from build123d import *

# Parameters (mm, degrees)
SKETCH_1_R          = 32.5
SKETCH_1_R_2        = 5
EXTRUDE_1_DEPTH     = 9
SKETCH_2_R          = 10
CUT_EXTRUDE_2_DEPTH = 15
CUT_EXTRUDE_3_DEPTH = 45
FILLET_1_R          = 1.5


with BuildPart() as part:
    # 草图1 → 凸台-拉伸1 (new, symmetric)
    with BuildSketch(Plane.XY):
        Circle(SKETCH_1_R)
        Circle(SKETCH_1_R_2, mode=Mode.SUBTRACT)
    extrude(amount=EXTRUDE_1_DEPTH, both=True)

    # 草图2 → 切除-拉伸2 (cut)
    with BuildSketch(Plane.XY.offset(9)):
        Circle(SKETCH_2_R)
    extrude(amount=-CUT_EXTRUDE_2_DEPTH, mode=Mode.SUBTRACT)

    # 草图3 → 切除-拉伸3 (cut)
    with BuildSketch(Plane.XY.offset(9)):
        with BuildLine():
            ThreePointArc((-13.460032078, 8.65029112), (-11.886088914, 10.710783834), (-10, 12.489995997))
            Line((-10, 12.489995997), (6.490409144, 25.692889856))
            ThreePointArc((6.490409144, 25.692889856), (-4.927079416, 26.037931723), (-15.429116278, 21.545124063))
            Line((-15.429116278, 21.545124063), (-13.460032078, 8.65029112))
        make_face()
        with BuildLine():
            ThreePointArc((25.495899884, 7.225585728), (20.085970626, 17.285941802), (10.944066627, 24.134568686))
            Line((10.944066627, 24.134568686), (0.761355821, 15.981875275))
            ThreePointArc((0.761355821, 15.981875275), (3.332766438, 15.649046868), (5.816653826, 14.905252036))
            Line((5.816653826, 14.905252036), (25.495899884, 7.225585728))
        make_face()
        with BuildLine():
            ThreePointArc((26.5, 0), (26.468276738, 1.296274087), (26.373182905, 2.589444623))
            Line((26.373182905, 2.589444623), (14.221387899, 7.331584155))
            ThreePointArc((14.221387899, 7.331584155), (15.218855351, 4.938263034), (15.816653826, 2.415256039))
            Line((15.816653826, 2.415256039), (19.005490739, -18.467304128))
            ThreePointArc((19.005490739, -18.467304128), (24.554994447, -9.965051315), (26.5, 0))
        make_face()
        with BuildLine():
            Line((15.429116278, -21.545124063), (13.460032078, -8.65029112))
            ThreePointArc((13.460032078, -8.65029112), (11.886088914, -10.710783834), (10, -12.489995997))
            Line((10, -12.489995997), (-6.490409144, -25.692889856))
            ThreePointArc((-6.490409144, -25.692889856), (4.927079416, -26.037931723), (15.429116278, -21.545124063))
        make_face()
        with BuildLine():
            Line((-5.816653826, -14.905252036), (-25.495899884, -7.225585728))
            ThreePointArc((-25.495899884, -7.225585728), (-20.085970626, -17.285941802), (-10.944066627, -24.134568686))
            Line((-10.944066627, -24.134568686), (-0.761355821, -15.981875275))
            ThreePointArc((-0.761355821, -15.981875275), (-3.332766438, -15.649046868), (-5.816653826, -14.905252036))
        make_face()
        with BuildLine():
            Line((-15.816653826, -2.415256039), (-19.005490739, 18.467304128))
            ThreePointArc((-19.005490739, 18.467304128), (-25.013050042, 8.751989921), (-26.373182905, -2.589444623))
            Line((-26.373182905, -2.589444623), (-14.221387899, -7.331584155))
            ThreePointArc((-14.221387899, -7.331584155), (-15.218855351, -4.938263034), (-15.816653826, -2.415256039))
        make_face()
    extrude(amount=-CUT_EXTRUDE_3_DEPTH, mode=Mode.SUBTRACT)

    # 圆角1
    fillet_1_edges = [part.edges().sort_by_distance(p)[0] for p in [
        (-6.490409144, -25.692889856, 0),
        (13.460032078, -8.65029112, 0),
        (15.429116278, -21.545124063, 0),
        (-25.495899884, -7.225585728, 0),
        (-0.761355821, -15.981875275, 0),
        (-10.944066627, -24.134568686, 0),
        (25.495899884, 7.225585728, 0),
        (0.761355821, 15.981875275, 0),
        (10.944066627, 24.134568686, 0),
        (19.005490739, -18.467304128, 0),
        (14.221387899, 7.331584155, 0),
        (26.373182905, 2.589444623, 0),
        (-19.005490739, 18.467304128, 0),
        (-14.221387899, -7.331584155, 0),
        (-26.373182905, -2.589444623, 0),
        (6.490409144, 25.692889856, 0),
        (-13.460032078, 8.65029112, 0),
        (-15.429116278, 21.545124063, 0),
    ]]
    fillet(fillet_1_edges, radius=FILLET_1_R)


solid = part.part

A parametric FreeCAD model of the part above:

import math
import FreeCAD as App
import Part
import Sketcher
Q = App.Units.Quantity


def edges_at(feature, points):
    """Names of the edges that pass closest to the given points."""
    edges = feature.Shape.Edges
    near = lambda p: min(range(len(edges)), key=lambda i: edges[i].distToShape(Part.Vertex(*p))[0])
    return sorted({f"Edge{near(p) + 1}" for p in points})

doc = App.newDocument("Part")
body = doc.addObject("PartDesign::Body", "Body")

# Sketch on XY plane
sketch1 = body.newObject("Sketcher::SketchObject", "Sketch")
sketch1.AttachmentSupport = (doc.getObject("XY_Plane"), [""])
sketch1.MapMode = "FlatFace"
sketch1.addGeometry(Part.Circle(App.Vector(0, 0, 0), App.Vector(0, 0, 1), 32), False)
sketch1.addGeometry(Part.Circle(App.Vector(0, 0, 0), App.Vector(0, 0, 1), 5), False)
sketch1.addConstraint(Sketcher.Constraint("Coincident", 0, 3, -1, 1))
sketch1.addConstraint(Sketcher.Constraint("Coincident", 1, 3, -1, 1))
sketch1.addConstraint(Sketcher.Constraint("Diameter", 0, Q("65 mm")))
sketch1.addConstraint(Sketcher.Constraint("Diameter", 1, Q("10 mm")))
pad1 = body.newObject("PartDesign::Pad", "Pad")
pad1.Profile = sketch1
pad1.Length = 18
pad1.Midplane = True

# Sketch on XY plane
sketch2 = body.newObject("Sketcher::SketchObject", "Sketch001")
sketch2.AttachmentSupport = (doc.getObject("XY_Plane"), [""])
sketch2.MapMode = "FlatFace"
sketch2.AttachmentOffset = App.Placement(App.Vector(0, 0, 9), App.Rotation())
sketch2.addGeometry(Part.Circle(App.Vector(0, 0, 0), App.Vector(0, 0, 1), 10), False)
sketch2.addConstraint(Sketcher.Constraint("Coincident", 0, 3, -1, 1))
sketch2.addConstraint(Sketcher.Constraint("Diameter", 0, Q("20 mm")))
pocket1 = body.newObject("PartDesign::Pocket", "Pocket")
pocket1.Profile = sketch2
pocket1.Length = 15

# Sketch on XY plane
sketch3 = body.newObject("Sketcher::SketchObject", "Sketch002")
sketch3.AttachmentSupport = (doc.getObject("XY_Plane"), [""])
sketch3.MapMode = "FlatFace"
sketch3.AttachmentOffset = App.Placement(App.Vector(0, 0, 9), App.Rotation())
sketch3.addGeometry(Part.ArcOfCircle(Part.Circle(App.Vector(0, 0, 0), App.Vector(0, 0, 1), 16), math.radians(128.68), math.radians(147.27)), False)
sketch3.addGeometry(Part.LineSegment(App.Vector(-10, 12.5, 0), App.Vector(6.5, 25.7, 0)), False)
sketch3.addGeometry(Part.ArcOfCircle(Part.Circle(App.Vector(0, 0, 0), App.Vector(0, 0, 1), 26.5), math.radians(76), math.radians(126)), False)
sketch3.addGeometry(Part.LineSegment(App.Vector(-15.4, 21.5, 0), App.Vector(-13.5, 8.7, 0)), False)
sketch3.addGeometry(Part.ArcOfCircle(Part.Circle(App.Vector(0, 0, 0), App.Vector(0, 0, 1), 26.5), math.radians(16), math.radians(66)), False)
sketch3.addGeometry(Part.LineSegment(App.Vector(10.9, 24.1, 0), App.Vector(0.8, 16, 0)), False)
sketch3.addGeometry(Part.ArcOfCircle(Part.Circle(App.Vector(0, 0, 0), App.Vector(0, 0, 1), 16), math.radians(68.68), math.radians(87.27)), False)
sketch3.addGeometry(Part.LineSegment(App.Vector(5.8, 14.9, 0), App.Vector(25.5, 7.2, 0)), False)
sketch3.addGeometry(Part.ArcOfCircle(Part.Circle(App.Vector(0, 0, 0), App.Vector(0, 0, 1), 26.5), math.radians(0), math.radians(5.61)), False)
sketch3.addGeometry(Part.LineSegment(App.Vector(26.4, 2.6, 0), App.Vector(14.2, 7.3, 0)), False)
sketch3.addGeometry(Part.ArcOfCircle(Part.Circle(App.Vector(0, 0, 0), App.Vector(0, 0, 1), 16), math.radians(8.68), math.radians(27.27)), False)
sketch3.addGeometry(Part.LineSegment(App.Vector(15.8, 2.4, 0), App.Vector(19, -18.5, 0)), False)
sketch3.addGeometry(Part.ArcOfCircle(Part.Circle(App.Vector(0, 0, 0), App.Vector(0, 0, 1), 26.5), math.radians(-44), math.radians(0)), False)
sketch3.addGeometry(Part.LineSegment(App.Vector(15.4, -21.5, 0), App.Vector(13.5, -8.7, 0)), False)
sketch3.addGeometry(Part.ArcOfCircle(Part.Circle(App.Vector(0, 0, 0), App.Vector(0, 0, 1), 16), math.radians(-51.32), math.radians(-32.73)), False)
sketch3.addGeometry(Part.LineSegment(App.Vector(10, -12.5, 0), App.Vector(-6.5, -25.7, 0)), False)
sketch3.addGeometry(Part.ArcOfCircle(Part.Circle(App.Vector(0, 0, 0), App.Vector(0, 0, 1), 26.5), math.radians(-104), math.radians(-54)), False)
sketch3.addGeometry(Part.LineSegment(App.Vector(-5.8, -14.9, 0), App.Vector(-25.5, -7.2, 0)), False)
sketch3.addGeometry(Part.ArcOfCircle(Part.Circle(App.Vector(0, 0, 0), App.Vector(0, 0, 1), 26.5), math.radians(-164), math.radians(-114)), False)
sketch3.addGeometry(Part.LineSegment(App.Vector(-10.9, -24.1, 0), App.Vector(-0.8, -16, 0)), False)
sketch3.addGeometry(Part.ArcOfCircle(Part.Circle(App.Vector(0, 0, 0), App.Vector(0, 0, 1), 16), math.radians(-111.32), math.radians(-92.73)), False)
sketch3.addGeometry(Part.LineSegment(App.Vector(-15.8, -2.4, 0), App.Vector(-19, 18.5, 0)), False)
sketch3.addGeometry(Part.ArcOfCircle(Part.Circle(App.Vector(0, 0, 0), App.Vector(0, 0, 1), 26.5), math.radians(136), math.radians(186)), False)
sketch3.addGeometry(Part.LineSegment(App.Vector(-26.4, -2.6, 0), App.Vector(-14.2, -7.3, 0)), False)
sketch3.addGeometry(Part.ArcOfCircle(Part.Circle(App.Vector(0, 0, 0), App.Vector(0, 0, 1), 16), math.radians(-171.32), math.radians(-152.73)), False)
sketch3.addConstraint(Sketcher.Constraint("Tangent", 0, 1, 1, 1))
sketch3.addConstraint(Sketcher.Constraint("Coincident", 1, 2, 2, 1))
sketch3.addConstraint(Sketcher.Constraint("Coincident", 2, 2, 3, 1))
sketch3.addConstraint(Sketcher.Constraint("Coincident", 3, 2, 0, 2))
sketch3.addConstraint(Sketcher.Constraint("Coincident", 4, 2, 5, 1))
sketch3.addConstraint(Sketcher.Constraint("Coincident", 5, 2, 6, 2))
sketch3.addConstraint(Sketcher.Constraint("Tangent", 6, 1, 7, 1))
sketch3.addConstraint(Sketcher.Constraint("Coincident", 7, 2, 4, 1))
sketch3.addConstraint(Sketcher.Constraint("Coincident", 8, 2, 9, 1))
sketch3.addConstraint(Sketcher.Constraint("Coincident", 9, 2, 10, 2))
sketch3.addConstraint(Sketcher.Constraint("Tangent", 10, 1, 11, 1))
sketch3.addConstraint(Sketcher.Constraint("Coincident", 11, 2, 12, 1))
sketch3.addConstraint(Sketcher.Constraint("Tangent", 12, 2, 8, 1))
sketch3.addConstraint(Sketcher.Constraint("Coincident", 13, 2, 14, 2))
sketch3.addConstraint(Sketcher.Constraint("Tangent", 14, 1, 15, 1))
sketch3.addConstraint(Sketcher.Constraint("Coincident", 15, 2, 16, 1))
sketch3.addConstraint(Sketcher.Constraint("Coincident", 16, 2, 13, 1))
sketch3.addConstraint(Sketcher.Constraint("Coincident", 17, 2, 18, 1))
sketch3.addConstraint(Sketcher.Constraint("Coincident", 18, 2, 19, 1))
sketch3.addConstraint(Sketcher.Constraint("Coincident", 19, 2, 20, 2))
sketch3.addConstraint(Sketcher.Constraint("Tangent", 20, 1, 17, 1))
sketch3.addConstraint(Sketcher.Constraint("Coincident", 21, 2, 22, 1))
sketch3.addConstraint(Sketcher.Constraint("Coincident", 22, 2, 23, 1))
sketch3.addConstraint(Sketcher.Constraint("Coincident", 23, 2, 24, 2))
sketch3.addConstraint(Sketcher.Constraint("Tangent", 24, 1, 21, 1))
sketch3.addConstraint(Sketcher.Constraint("Coincident", 0, 3, -1, 1))
sketch3.addConstraint(Sketcher.Constraint("Coincident", 2, 3, -1, 1))
sketch3.addConstraint(Sketcher.Constraint("Coincident", 4, 3, -1, 1))
sketch3.addConstraint(Sketcher.Constraint("Coincident", 6, 3, -1, 1))
sketch3.addConstraint(Sketcher.Constraint("Coincident", 8, 3, -1, 1))
sketch3.addConstraint(Sketcher.Constraint("Coincident", 10, 3, -1, 1))
sketch3.addConstraint(Sketcher.Constraint("Coincident", 14, 3, -1, 1))
sketch3.addConstraint(Sketcher.Constraint("Coincident", 16, 3, -1, 1))
sketch3.addConstraint(Sketcher.Constraint("Coincident", 18, 3, -1, 1))
sketch3.addConstraint(Sketcher.Constraint("Coincident", 20, 3, -1, 1))
sketch3.addConstraint(Sketcher.Constraint("Coincident", 22, 3, -1, 1))
sketch3.addConstraint(Sketcher.Constraint("Coincident", 24, 3, -1, 1))
sketch3.addConstraint(Sketcher.Constraint("Equal", 2, 4))
sketch3.addConstraint(Sketcher.Constraint("Equal", 0, 6))
sketch3.addConstraint(Sketcher.Constraint("Equal", 4, 8))
sketch3.addConstraint(Sketcher.Constraint("Equal", 6, 10))
sketch3.addConstraint(Sketcher.Constraint("Equal", 8, 12))
sketch3.addConstraint(Sketcher.Constraint("Equal", 10, 14))
sketch3.addConstraint(Sketcher.Constraint("Equal", 12, 16))
sketch3.addConstraint(Sketcher.Constraint("Equal", 16, 18))
sketch3.addConstraint(Sketcher.Constraint("Equal", 14, 20))
sketch3.addConstraint(Sketcher.Constraint("Equal", 18, 22))
sketch3.addConstraint(Sketcher.Constraint("Equal", 20, 24))
sketch3.addConstraint(Sketcher.Constraint("PointOnObject", 12, 2, -1))
sketch3.addConstraint(Sketcher.Constraint("Parallel", 1, 5))
sketch3.addConstraint(Sketcher.Constraint("Parallel", 7, 9))
sketch3.addConstraint(Sketcher.Constraint("Parallel", 3, 11))
sketch3.addConstraint(Sketcher.Constraint("Parallel", 11, 13))
sketch3.addConstraint(Sketcher.Constraint("Parallel", 5, 15))
sketch3.addConstraint(Sketcher.Constraint("Parallel", 9, 17))
sketch3.addConstraint(Sketcher.Constraint("Parallel", 15, 19))
sketch3.addConstraint(Sketcher.Constraint("Parallel", 13, 21))
sketch3.addConstraint(Sketcher.Constraint("Parallel", 17, 23))
sketch3.addConstraint(Sketcher.Constraint("Equal", 3, 5))
sketch3.addConstraint(Sketcher.Constraint("Equal", 5, 9))
sketch3.addConstraint(Sketcher.Constraint("Equal", 9, 13))
sketch3.addConstraint(Sketcher.Constraint("Equal", 13, 19))
sketch3.addConstraint(Sketcher.Constraint("Equal", 19, 23))
sketch3.addConstraint(Sketcher.Constraint("Radius", 0, Q("16 mm")))
sketch3.addConstraint(Sketcher.Constraint("Radius", 2, Q("26.5 mm")))
sketch3.addConstraint(Sketcher.Constraint("DistanceX", 0, 1, -1, 1, Q("10 mm")))
sketch3.addConstraint(Sketcher.Constraint("DistanceY", 7, 2, 9, 2, Q("0.105998 mm")))
sketch3.addConstraint(Sketcher.Constraint("DistanceX", -1, 1, 7, 2, Q("25.4959 mm")))
sketch3.addConstraint(Sketcher.Constraint("DistanceY", 15, 2, 13, 2, Q("17.042599 mm")))
pocket2 = body.newObject("PartDesign::Pocket", "Pocket001")
pocket2.Profile = sketch3
pocket2.Length = 45
doc.recompute()

fillet = body.newObject("PartDesign::Fillet", "Fillet")
fillet.Base = (pocket2, edges_at(pocket2, [
    (-6.49, -25.693, 0),
    (13.46, -8.65, 0),
    (15.429, -21.545, 0),
    (-25.496, -7.226, 0),
    (-0.761, -15.982, 0),
    (-10.944, -24.135, 0),
    (25.496, 7.226, 0),
    (0.761, 15.982, 0),
    (10.944, 24.135, 0),
    (19.005, -18.467, 0),
    (14.221, 7.332, 0),
    (26.373, 2.589, 0),
    (-19.005, 18.467, 0),
    (-14.221, -7.332, 0),
    (-26.373, -2.589, 0),
    (6.49, 25.693, 0),
    (-13.46, 8.65, 0),
    (-15.429, 21.545, 0),
]))
fillet.Radius = 1.5

doc.recompute()
